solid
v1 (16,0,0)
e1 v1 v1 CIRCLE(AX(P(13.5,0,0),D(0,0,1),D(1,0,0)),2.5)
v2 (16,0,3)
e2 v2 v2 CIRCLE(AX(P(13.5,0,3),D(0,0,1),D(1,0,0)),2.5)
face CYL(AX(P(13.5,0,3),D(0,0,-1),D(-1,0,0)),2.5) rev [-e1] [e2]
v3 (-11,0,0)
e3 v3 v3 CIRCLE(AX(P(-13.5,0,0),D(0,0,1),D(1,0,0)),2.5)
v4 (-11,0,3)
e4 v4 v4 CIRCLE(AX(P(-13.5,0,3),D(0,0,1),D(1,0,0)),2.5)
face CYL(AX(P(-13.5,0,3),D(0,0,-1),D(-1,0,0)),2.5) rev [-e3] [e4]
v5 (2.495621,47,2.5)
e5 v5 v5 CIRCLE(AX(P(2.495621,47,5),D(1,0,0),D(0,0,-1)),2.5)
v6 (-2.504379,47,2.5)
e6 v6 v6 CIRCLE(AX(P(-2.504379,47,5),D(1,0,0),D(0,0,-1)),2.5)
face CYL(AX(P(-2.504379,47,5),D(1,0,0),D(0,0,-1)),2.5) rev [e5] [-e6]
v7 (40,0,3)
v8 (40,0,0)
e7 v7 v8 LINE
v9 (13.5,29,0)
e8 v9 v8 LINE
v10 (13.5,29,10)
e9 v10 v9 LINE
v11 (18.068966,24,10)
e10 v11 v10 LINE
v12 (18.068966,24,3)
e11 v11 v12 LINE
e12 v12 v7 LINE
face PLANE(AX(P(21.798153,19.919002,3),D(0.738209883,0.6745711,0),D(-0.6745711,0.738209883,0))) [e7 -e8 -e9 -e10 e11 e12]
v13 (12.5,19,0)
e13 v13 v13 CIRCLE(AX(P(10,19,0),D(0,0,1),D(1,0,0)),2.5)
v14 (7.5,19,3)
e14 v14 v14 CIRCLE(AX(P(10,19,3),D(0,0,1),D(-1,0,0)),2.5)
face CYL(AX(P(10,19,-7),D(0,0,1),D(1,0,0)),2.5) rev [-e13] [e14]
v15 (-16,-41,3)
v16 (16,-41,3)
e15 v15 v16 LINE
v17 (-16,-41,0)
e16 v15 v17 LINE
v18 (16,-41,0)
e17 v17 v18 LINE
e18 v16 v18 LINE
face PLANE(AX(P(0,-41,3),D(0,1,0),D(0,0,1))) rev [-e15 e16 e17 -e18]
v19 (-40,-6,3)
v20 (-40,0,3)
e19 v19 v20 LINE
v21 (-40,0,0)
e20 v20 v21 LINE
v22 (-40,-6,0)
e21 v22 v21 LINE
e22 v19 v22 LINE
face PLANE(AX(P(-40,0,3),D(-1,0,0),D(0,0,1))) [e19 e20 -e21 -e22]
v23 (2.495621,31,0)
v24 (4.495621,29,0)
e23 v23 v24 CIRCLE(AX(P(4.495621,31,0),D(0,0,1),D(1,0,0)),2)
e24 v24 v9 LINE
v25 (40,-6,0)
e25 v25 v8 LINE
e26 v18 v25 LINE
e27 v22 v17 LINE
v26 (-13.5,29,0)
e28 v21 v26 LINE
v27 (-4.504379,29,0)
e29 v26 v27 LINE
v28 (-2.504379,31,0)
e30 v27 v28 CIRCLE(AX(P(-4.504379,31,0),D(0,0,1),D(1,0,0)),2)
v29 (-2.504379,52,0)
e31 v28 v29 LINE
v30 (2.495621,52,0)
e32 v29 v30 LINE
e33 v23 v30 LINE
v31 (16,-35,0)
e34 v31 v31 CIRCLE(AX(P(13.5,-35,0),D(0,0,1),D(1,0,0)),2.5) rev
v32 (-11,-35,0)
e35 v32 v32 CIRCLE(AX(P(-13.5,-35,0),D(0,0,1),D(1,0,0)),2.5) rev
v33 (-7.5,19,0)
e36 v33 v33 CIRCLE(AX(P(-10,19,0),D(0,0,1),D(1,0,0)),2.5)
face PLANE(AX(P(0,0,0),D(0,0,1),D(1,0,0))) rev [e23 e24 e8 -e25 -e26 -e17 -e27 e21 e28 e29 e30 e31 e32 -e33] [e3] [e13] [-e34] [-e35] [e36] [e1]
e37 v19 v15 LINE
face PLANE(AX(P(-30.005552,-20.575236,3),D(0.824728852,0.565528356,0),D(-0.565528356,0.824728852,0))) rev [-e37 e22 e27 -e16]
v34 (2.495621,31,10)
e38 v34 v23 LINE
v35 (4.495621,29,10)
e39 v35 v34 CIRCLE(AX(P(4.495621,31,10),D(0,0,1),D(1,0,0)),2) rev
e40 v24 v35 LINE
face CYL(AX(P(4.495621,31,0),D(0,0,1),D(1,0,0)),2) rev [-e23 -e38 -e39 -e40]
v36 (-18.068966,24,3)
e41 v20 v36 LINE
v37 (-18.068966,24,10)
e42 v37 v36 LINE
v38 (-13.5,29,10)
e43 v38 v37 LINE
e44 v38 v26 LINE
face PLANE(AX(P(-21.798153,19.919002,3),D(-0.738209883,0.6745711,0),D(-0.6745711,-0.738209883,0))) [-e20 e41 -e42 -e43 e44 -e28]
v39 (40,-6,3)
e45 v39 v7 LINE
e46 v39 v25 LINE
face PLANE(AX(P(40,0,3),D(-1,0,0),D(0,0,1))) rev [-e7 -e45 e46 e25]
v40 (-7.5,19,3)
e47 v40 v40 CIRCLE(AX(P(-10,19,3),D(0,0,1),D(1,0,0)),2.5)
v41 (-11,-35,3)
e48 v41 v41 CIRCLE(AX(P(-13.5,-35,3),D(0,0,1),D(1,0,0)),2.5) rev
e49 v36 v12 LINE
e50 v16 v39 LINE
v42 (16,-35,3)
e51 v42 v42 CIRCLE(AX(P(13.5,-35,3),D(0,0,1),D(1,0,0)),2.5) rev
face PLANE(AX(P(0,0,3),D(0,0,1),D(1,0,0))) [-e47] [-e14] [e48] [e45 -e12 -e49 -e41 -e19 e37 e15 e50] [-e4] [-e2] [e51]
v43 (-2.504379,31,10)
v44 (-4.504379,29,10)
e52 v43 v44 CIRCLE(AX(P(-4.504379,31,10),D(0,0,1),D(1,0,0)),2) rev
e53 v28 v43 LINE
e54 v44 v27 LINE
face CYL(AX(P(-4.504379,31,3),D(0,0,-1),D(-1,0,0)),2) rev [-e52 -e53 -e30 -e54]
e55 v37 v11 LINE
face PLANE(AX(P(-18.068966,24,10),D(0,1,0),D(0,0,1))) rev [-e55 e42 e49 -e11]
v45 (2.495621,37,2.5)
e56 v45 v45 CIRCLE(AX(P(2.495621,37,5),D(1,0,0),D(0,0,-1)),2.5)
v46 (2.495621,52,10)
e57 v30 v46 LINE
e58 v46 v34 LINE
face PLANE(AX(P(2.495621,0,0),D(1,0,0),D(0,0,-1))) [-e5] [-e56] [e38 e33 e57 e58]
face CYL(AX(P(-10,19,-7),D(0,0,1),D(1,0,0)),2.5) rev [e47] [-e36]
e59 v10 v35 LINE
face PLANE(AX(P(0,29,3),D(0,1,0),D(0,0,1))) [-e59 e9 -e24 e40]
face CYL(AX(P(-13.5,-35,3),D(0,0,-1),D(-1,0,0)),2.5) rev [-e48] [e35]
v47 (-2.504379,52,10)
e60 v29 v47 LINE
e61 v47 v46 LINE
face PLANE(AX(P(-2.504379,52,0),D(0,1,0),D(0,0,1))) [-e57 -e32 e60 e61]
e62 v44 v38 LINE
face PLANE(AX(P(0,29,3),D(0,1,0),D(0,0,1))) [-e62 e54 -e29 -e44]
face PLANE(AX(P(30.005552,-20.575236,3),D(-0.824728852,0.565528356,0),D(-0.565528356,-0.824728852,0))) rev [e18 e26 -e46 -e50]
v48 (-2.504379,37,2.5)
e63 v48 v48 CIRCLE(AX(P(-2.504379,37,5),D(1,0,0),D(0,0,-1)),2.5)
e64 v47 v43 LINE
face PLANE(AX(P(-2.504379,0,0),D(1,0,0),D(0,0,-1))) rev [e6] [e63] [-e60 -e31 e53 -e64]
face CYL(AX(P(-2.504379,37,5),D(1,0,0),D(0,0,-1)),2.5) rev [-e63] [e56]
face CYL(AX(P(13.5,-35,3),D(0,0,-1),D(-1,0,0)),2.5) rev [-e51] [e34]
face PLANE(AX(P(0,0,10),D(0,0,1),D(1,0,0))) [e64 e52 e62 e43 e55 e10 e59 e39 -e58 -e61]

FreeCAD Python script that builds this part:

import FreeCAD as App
import Part
import Sketcher
Q = App.Units.Quantity


def edges_at(feature, points):
    """Names of the edges that pass closest to the given points."""
    edges = feature.Shape.Edges
    near = lambda p: min(range(len(edges)), key=lambda i: edges[i].distToShape(Part.Vertex(*p))[0])
    return sorted({f"Edge{near(p) + 1}" for p in points})

doc = App.newDocument("Part")
params = doc.addObject("Spreadsheet::Sheet", "Params")
for row, (alias, value) in enumerate([
    ("sketch1_diameter", "5 mm"),
    ("sketch1_width", "27 mm"),
    ("sketch1_width2", "32 mm"),
    ("sketch1_height", "6 mm"),
    ("pad1_length", "3 mm"),
    ("sketch2_width", "27 mm"),
    ("pad2_length", "7 mm"),
    ("sketch3_diameter", "5 mm"),
    ("sketch3_width", "23 mm"),
    ("sketch3_height", "10 mm"),
    ("pad3_length", "2.8 mm"),
    ("pad3_length2", "2.2 mm"),
    ("sketch4_diameter", "5 mm"),
    ("pocket1_length", "10 mm"),
    ("fillet_radius", "2 mm"),
], start=1):
    params.set(f"A{row}", alias)
    params.set(f"B{row}", "=" + value)
    params.setAlias(f"B{row}", alias)

body = doc.addObject("PartDesign::Body", "Body")

sketch1 = doc.addObject("Sketcher::SketchObject", "Sketch")
body.addObject(sketch1)
sketch1.AttachmentSupport = (doc.XY_Plane, [""])
sketch1.MapMode = "FlatFace"
sketch1.addGeometry([
    Part.LineSegment(App.Vector(16, -41, 0), App.Vector(40, -6, 0)),
    Part.LineSegment(App.Vector(40, -6, 0), App.Vector(40, 0, 0)),
    Part.LineSegment(App.Vector(40, 0, 0), App.Vector(13.5, 29, 0)),
    Part.LineSegment(App.Vector(13.5, 29, 0), App.Vector(-13.5, 29, 0)),
    Part.LineSegment(App.Vector(-13.5, 29, 0), App.Vector(-40, 0, 0)),
    Part.LineSegment(App.Vector(-40, 0, 0), App.Vector(-40, -6, 0)),
    Part.LineSegment(App.Vector(-40, -6, 0), App.Vector(-16, -41, 0)),
    Part.LineSegment(App.Vector(-16, -41, 0), App.Vector(16, -41, 0)),
    Part.Circle(App.Vector(-13.5, -35, 0), App.Vector(0, 0, 1), 2.5),
    Part.Circle(App.Vector(13.5, -35, 0), App.Vector(0, 0, 1), 2.5),
    Part.Circle(App.Vector(-13.5, 0, 0), App.Vector(0, 0, 1), 2.5),
    Part.Circle(App.Vector(13.5, 0, 0), App.Vector(0, 0, 1), 2.5),
], False)
sketch1.addConstraint([
    Sketcher.Constraint("Coincident", 0, 2, 1, 1),
    Sketcher.Constraint("Coincident", 1, 2, 2, 1),
    Sketcher.Constraint("Coincident", 2, 2, 3, 1),
    Sketcher.Constraint("Coincident", 3, 2, 4, 1),
    Sketcher.Constraint("Coincident", 4, 2, 5, 1),
    Sketcher.Constraint("Coincident", 5, 2, 6, 1),
    Sketcher.Constraint("Coincident", 6, 2, 7, 1),
    Sketcher.Constraint("Coincident", 7, 2, 0, 1),
    Sketcher.Constraint("Vertical", 1),
    Sketcher.Constraint("Horizontal", 3),
    Sketcher.Constraint("Vertical", 5),
    Sketcher.Constraint("Horizontal", 7),
    Sketcher.Constraint("Equal", 8, 9),
    Sketcher.Constraint("Equal", 9, 10),
    Sketcher.Constraint("Equal", 10, 11),
    Sketcher.Constraint("Symmetric", 10, 3, 11, 3, -1, 1),
    Sketcher.Constraint("Symmetric", 1, 2, 4, 2, -1, 1),
    Sketcher.Constraint("Symmetric", 8, 3, 9, 3, -2),
    Sketcher.Constraint("PointOnObject", 10, 3, -1),
    Sketcher.Constraint("PointOnObject", 1, 2, -1),
    Sketcher.Constraint("Horizontal", 0, 2, 5, 2),
    Sketcher.Constraint("Vertical", 8, 3, 10, 3),
    Sketcher.Constraint("Vertical", 11, 3, 2, 2),
    Sketcher.Constraint("Vertical", 10, 3, 3, 2),
    Sketcher.Constraint("Equal", 0, 6),
    Sketcher.Constraint("Diameter", 8, Q("5 mm")),
    Sketcher.Constraint("DistanceX", 3, 2, 3, 1, Q("27 mm")),
    Sketcher.Constraint("DistanceX", 7, 1, 7, 2, Q("32 mm")),
    Sketcher.Constraint("DistanceY", 1, 1, 1, 2, Q("6 mm")),
    Sketcher.Constraint("DistanceY", 8, 3, -1, 1, Q("35 mm")),
    Sketcher.Constraint("DistanceX", -1, 1, 0, 2, Q("40 mm")),
    Sketcher.Constraint("DistanceY", -1, 1, 2, 2, Q("29 mm")),
    Sketcher.Constraint("DistanceY", 6, 2, -1, 1, Q("41 mm")),
])
sketch1.setExpression("Constraints[25]", "Params.sketch1_diameter")
sketch1.setExpression("Constraints[26]", "Params.sketch1_width")
sketch1.setExpression("Constraints[27]", "Params.sketch1_width2")
sketch1.setExpression("Constraints[28]", "Params.sketch1_height")
pad1 = doc.addObject("PartDesign::Pad", "Pad")
body.addObject(pad1)
pad1.Profile = sketch1
pad1.setExpression("Length", "Params.pad1_length")

sketch2 = doc.addObject("Sketcher::SketchObject", "Sketch001")
body.addObject(sketch2)
sketch2.AttachmentSupport = (doc.XY_Plane, [""])
sketch2.MapMode = "FlatFace"
sketch2.AttachmentOffset = App.Placement(App.Vector(0, 0, 3), App.Rotation())
sketch2.addGeometry([
    Part.LineSegment(App.Vector(-13.5, 29, 0), App.Vector(-18.068966, 24, 0)),
    Part.LineSegment(App.Vector(-18.068966, 24, 0), App.Vector(18.068966, 24, 0)),
    Part.LineSegment(App.Vector(18.068966, 24, 0), App.Vector(13.5, 29, 0)),
    Part.LineSegment(App.Vector(13.5, 29, 0), App.Vector(-13.5, 29, 0)),
], False)
sketch2.addConstraint([
    Sketcher.Constraint("Coincident", 0, 2, 1, 1),
    Sketcher.Constraint("Coincident", 1, 2, 2, 1),
    Sketcher.Constraint("Coincident", 2, 2, 3, 1),
    Sketcher.Constraint("Coincident", 3, 2, 0, 1),
    Sketcher.Constraint("Horizontal", 1),
    Sketcher.Constraint("Horizontal", 3),
    Sketcher.Constraint("Equal", 0, 2),
    Sketcher.Constraint("DistanceX", 3, 2, 3, 1, Q("27 mm")),
    Sketcher.Constraint("DistanceY", -1, 1, 0, 2, Q("24 mm")),
    Sketcher.Constraint("DistanceY", -1, 1, 2, 2, Q("29 mm")),
    Sketcher.Constraint("DistanceX", -1, 1, 2, 2, Q("13.5 mm")),
    Sketcher.Constraint("DistanceX", 1, 1, 1, 2, Q("36.137931 mm")),
])
sketch2.setExpression("Constraints[7]", "Params.sketch2_width")
pad2 = doc.addObject("PartDesign::Pad", "Pad001")
body.addObject(pad2)
pad2.Profile = sketch2
pad2.setExpression("Length", "Params.pad2_length")

sketch3 = doc.addObject("Sketcher::SketchObject", "Sketch002")
body.addObject(sketch3)
sketch3.AttachmentSupport = (doc.YZ_Plane, [""])
sketch3.MapMode = "FlatFace"
sketch3.AttachmentOffset = App.Placement(App.Vector(0, 0, -0.304379), App.Rotation())
sketch3.addGeometry([
    Part.LineSegment(App.Vector(52, 10, 0), App.Vector(29, 10, 0)),
    Part.LineSegment(App.Vector(29, 10, 0), App.Vector(29, 0, 0)),
    Part.LineSegment(App.Vector(29, 0, 0), App.Vector(52, 0, 0)),
    Part.LineSegment(App.Vector(52, 0, 0), App.Vector(52, 10, 0)),
    Part.Circle(App.Vector(37, 5, 0), App.Vector(0, 0, 1), 2.5),
    Part.Circle(App.Vector(47, 5, 0), App.Vector(0, 0, 1), 2.5),
], False)
sketch3.addConstraint([
    Sketcher.Constraint("Coincident", 0, 2, 1, 1),
    Sketcher.Constraint("Coincident", 1, 2, 2, 1),
    Sketcher.Constraint("Coincident", 2, 2, 3, 1),
    Sketcher.Constraint("Coincident", 3, 2, 0, 1),
    Sketcher.Constraint("Horizontal", 0),
    Sketcher.Constraint("Vertical", 1),
    Sketcher.Constraint("Horizontal", 2),
    Sketcher.Constraint("Vertical", 3),
    Sketcher.Constraint("Equal", 4, 5),
    Sketcher.Constraint("PointOnObject", 1, 2, -1),
    Sketcher.Constraint("Horizontal", 4, 3, 5, 3),
    Sketcher.Constraint("Diameter", 4, Q("5 mm")),
    Sketcher.Constraint("DistanceX", 0, 2, 0, 1, Q("23 mm")),
    Sketcher.Constraint("DistanceY", 1, 2, 1, 1, Q("10 mm")),
    Sketcher.Constraint("DistanceX", -1, 1, 4, 3, Q("37 mm")),
    Sketcher.Constraint("DistanceY", -1, 1, 4, 3, Q("5 mm")),
    Sketcher.Constraint("DistanceX", -1, 1, 5, 3, Q("47 mm")),
    Sketcher.Constraint("DistanceX", -1, 1, 0, 2, Q("29 mm")),
])
sketch3.setExpression("Constraints[11]", "Params.sketch3_diameter")
sketch3.setExpression("Constraints[12]", "Params.sketch3_width")
sketch3.setExpression("Constraints[13]", "Params.sketch3_height")
pad3 = doc.addObject("PartDesign::Pad", "Pad002")
body.addObject(pad3)
pad3.Profile = sketch3
pad3.Type = "TwoLengths"
pad3.setExpression("Length", "Params.pad3_length")
pad3.setExpression("Length2", "Params.pad3_length2")

sketch4 = doc.addObject("Sketcher::SketchObject", "Sketch003")
body.addObject(sketch4)
sketch4.AttachmentSupport = (doc.XY_Plane, [""])
sketch4.MapMode = "FlatFace"
sketch4.AttachmentOffset = App.Placement(App.Vector(0, 0, 3), App.Rotation())
sketch4.addGeometry([
    Part.Circle(App.Vector(-10, 19, 0), App.Vector(0, 0, 1), 2.5),
    Part.Circle(App.Vector(10, 19, 0), App.Vector(0, 0, 1), 2.5),
], False)
sketch4.addConstraint([
    Sketcher.Constraint("Equal", 0, 1),
    Sketcher.Constraint("Symmetric", 0, 3, 1, 3, -2),
    Sketcher.Constraint("Diameter", 0, Q("5 mm")),
    Sketcher.Constraint("DistanceX", 0, 3, -1, 1, Q("10 mm")),
    Sketcher.Constraint("DistanceY", -1, 1, 0, 3, Q("19 mm")),
])
sketch4.setExpression("Constraints[2]", "Params.sketch4_diameter")
pocket1 = doc.addObject("PartDesign::Pocket", "Pocket")
body.addObject(pocket1)
pocket1.Profile = sketch4
pocket1.setExpression("Length", "Params.pocket1_length")
doc.recompute()

fillet = doc.addObject("PartDesign::Fillet", "Fillet")
body.addObject(fillet)
fillet.Base = (pocket1, edges_at(pocket1, [(-2.504, 29, 5), (2.496, 29, 5)]))
fillet.setExpression("Radius", "Params.fillet_radius")

doc.recompute()
